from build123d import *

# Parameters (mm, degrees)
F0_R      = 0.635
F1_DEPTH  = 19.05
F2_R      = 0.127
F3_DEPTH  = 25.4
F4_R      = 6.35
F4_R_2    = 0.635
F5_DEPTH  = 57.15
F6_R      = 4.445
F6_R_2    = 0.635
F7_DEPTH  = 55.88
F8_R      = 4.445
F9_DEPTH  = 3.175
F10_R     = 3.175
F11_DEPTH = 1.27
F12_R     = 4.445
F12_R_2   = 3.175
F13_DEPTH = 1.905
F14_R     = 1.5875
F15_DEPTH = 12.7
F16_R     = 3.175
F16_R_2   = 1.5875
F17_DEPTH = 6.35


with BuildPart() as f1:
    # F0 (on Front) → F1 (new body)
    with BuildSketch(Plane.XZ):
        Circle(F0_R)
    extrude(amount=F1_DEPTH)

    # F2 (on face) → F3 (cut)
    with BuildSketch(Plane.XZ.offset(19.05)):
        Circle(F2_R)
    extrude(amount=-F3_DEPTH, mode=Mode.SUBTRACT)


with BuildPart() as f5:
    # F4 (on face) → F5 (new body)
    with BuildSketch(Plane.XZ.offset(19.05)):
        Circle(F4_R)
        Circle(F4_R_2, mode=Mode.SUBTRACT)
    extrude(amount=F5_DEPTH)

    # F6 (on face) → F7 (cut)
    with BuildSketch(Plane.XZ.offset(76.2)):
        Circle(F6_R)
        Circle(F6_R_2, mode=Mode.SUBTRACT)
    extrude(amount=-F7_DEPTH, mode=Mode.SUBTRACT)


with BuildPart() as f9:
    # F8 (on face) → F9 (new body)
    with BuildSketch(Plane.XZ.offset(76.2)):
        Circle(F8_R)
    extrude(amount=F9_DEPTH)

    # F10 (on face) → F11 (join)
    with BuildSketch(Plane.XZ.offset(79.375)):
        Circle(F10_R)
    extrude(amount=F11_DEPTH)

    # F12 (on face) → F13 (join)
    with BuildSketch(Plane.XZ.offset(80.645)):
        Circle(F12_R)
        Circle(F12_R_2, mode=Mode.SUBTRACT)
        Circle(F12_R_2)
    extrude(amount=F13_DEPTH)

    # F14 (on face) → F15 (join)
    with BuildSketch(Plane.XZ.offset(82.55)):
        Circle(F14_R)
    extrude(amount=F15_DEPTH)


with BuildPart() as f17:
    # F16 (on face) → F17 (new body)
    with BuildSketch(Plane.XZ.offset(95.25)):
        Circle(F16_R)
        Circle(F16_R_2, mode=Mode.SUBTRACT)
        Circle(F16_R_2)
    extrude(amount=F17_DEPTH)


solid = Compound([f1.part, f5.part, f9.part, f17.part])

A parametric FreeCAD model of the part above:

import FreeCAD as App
import Part
import Sketcher
Q = App.Units.Quantity

doc = App.newDocument("Part")
body = doc.addObject("PartDesign::Body", "Body")

sketch1 = doc.addObject("Sketcher::SketchObject", "Sketch")
body.addObject(sketch1)
sketch1.AttachmentSupport = (doc.XZ_Plane, [""])
sketch1.MapMode = "FlatFace"
sketch1.addGeometry(Part.Circle(App.Vector(0, 0, 0), App.Vector(0, 0, 1), 0.6), False)
sketch1.addConstraint([
    Sketcher.Constraint("Coincident", 0, 3, -1, 1),
    Sketcher.Constraint("Diameter", 0, Q("0.05 in")),
])
pad1 = doc.addObject("PartDesign::Pad", "Pad")
body.addObject(pad1)
pad1.Profile = sketch1
pad1.Length = Q("0.75 in")

sketch2 = doc.addObject("Sketcher::SketchObject", "Sketch001")
body.addObject(sketch2)
sketch2.AttachmentSupport = (doc.XZ_Plane, [""])
sketch2.MapMode = "FlatFace"
sketch2.AttachmentOffset = App.Placement(App.Vector(0, 0, 0.75 * 25.4), App.Rotation())
sketch2.addGeometry(Part.Circle(App.Vector(0, 0, 0), App.Vector(0, 0, 1), 0.13), False)
sketch2.addConstraint([
    Sketcher.Constraint("Coincident", 0, 3, -1, 1),
    Sketcher.Constraint("Diameter", 0, Q("0.01 in")),
])
pocket1 = doc.addObject("PartDesign::Pocket", "Pocket")
body.addObject(pocket1)
pocket1.Profile = sketch2
pocket1.Length = Q("1 in")
body2 = doc.addObject("PartDesign::Body", "Body001")

sketch3 = doc.addObject("Sketcher::SketchObject", "Sketch002")
body2.addObject(sketch3)
sketch3.AttachmentSupport = (doc.getObject("XZ_Plane001"), [""])
sketch3.MapMode = "FlatFace"
sketch3.AttachmentOffset = App.Placement(App.Vector(0, 0, 0.75 * 25.4), App.Rotation())
sketch3.addGeometry([
    Part.Circle(App.Vector(0, 0, 0), App.Vector(0, 0, 1), 6.3),
    Part.Circle(App.Vector(0, 0, 0), App.Vector(0, 0, 1), 0.6),
], False)
sketch3.addConstraint([
    Sketcher.Constraint("Coincident", 0, 3, -1, 1),
    Sketcher.Constraint("Coincident", 1, 3, -1, 1),
    Sketcher.Constraint("Diameter", 0, Q("0.5 in")),
    Sketcher.Constraint("Diameter", 1, Q("0.05 in")),
])
pad2 = doc.addObject("PartDesign::Pad", "Pad001")
body2.addObject(pad2)
pad2.Profile = sketch3
pad2.Length = Q("2.25 in")

sketch4 = doc.addObject("Sketcher::SketchObject", "Sketch003")
body2.addObject(sketch4)
sketch4.AttachmentSupport = (doc.getObject("XZ_Plane001"), [""])
sketch4.MapMode = "FlatFace"
sketch4.AttachmentOffset = App.Placement(App.Vector(0, 0, 3 * 25.4), App.Rotation())
sketch4.addGeometry([
    Part.Circle(App.Vector(0, 0, 0), App.Vector(0, 0, 1), 4.4),
    Part.Circle(App.Vector(0, 0, 0), App.Vector(0, 0, 1), 0.6),
], False)
sketch4.addConstraint([
    Sketcher.Constraint("Coincident", 0, 3, -1, 1),
    Sketcher.Constraint("Coincident", 1, 3, -1, 1),
    Sketcher.Constraint("Diameter", 0, Q("0.35 in")),
    Sketcher.Constraint("Diameter", 1, Q("0.05 in")),
])
pocket2 = doc.addObject("PartDesign::Pocket", "Pocket001")
body2.addObject(pocket2)
pocket2.Profile = sketch4
pocket2.Length = Q("2.2 in")
body3 = doc.addObject("PartDesign::Body", "Body002")

sketch5 = doc.addObject("Sketcher::SketchObject", "Sketch004")
body3.addObject(sketch5)
sketch5.AttachmentSupport = (doc.getObject("XZ_Plane002"), [""])
sketch5.MapMode = "FlatFace"
sketch5.AttachmentOffset = App.Placement(App.Vector(0, 0, 3 * 25.4), App.Rotation())
sketch5.addGeometry(Part.Circle(App.Vector(0, 0, 0), App.Vector(0, 0, 1), 4.4), False)
sketch5.addConstraint([
    Sketcher.Constraint("Coincident", 0, 3, -1, 1),
    Sketcher.Constraint("Diameter", 0, Q("0.35 in")),
])
pad3 = doc.addObject("PartDesign::Pad", "Pad002")
body3.addObject(pad3)
pad3.Profile = sketch5
pad3.Length = Q("0.125 in")

sketch6 = doc.addObject("Sketcher::SketchObject", "Sketch005")
body3.addObject(sketch6)
sketch6.AttachmentSupport = (doc.getObject("XZ_Plane002"), [""])
sketch6.MapMode = "FlatFace"
sketch6.AttachmentOffset = App.Placement(App.Vector(0, 0, 3.125 * 25.4), App.Rotation())
sketch6.addGeometry(Part.Circle(App.Vector(0, 0, 0), App.Vector(0, 0, 1), 3.2), False)
sketch6.addConstraint([
    Sketcher.Constraint("Coincident", 0, 3, -1, 1),
    Sketcher.Constraint("Diameter", 0, Q("0.25 in")),
])
pad4 = doc.addObject("PartDesign::Pad", "Pad003")
body3.addObject(pad4)
pad4.Profile = sketch6
pad4.Length = Q("0.05 in")

sketch7 = doc.addObject("Sketcher::SketchObject", "Sketch006")
body3.addObject(sketch7)
sketch7.AttachmentSupport = (doc.getObject("XZ_Plane002"), [""])
sketch7.MapMode = "FlatFace"
sketch7.AttachmentOffset = App.Placement(App.Vector(0, 0, 3.175 * 25.4), App.Rotation())
sketch7.addGeometry(Part.Circle(App.Vector(0, 0, 0), App.Vector(0, 0, 1), 4.4), False)
sketch7.addConstraint([
    Sketcher.Constraint("Coincident", 0, 3, -1, 1),
    Sketcher.Constraint("Diameter", 0, Q("0.35 in")),
])
pad5 = doc.addObject("PartDesign::Pad", "Pad004")
body3.addObject(pad5)
pad5.Profile = sketch7
pad5.Length = Q("0.075 in")

sketch8 = doc.addObject("Sketcher::SketchObject", "Sketch007")
body3.addObject(sketch8)
sketch8.AttachmentSupport = (doc.getObject("XZ_Plane002"), [""])
sketch8.MapMode = "FlatFace"
sketch8.AttachmentOffset = App.Placement(App.Vector(0, 0, 3.25 * 25.4), App.Rotation())
sketch8.addGeometry(Part.Circle(App.Vector(0, 0, 0), App.Vector(0, 0, 1), 1.6), False)
sketch8.addConstraint([
    Sketcher.Constraint("Coincident", 0, 3, -1, 1),
    Sketcher.Constraint("Diameter", 0, Q("0.125 in")),
])
pad6 = doc.addObject("PartDesign::Pad", "Pad005")
body3.addObject(pad6)
pad6.Profile = sketch8
pad6.Length = Q("0.5 in")
body4 = doc.addObject("PartDesign::Body", "Body003")

sketch9 = doc.addObject("Sketcher::SketchObject", "Sketch008")
body4.addObject(sketch9)
sketch9.AttachmentSupport = (doc.getObject("XZ_Plane003"), [""])
sketch9.MapMode = "FlatFace"
sketch9.AttachmentOffset = App.Placement(App.Vector(0, 0, 3.75 * 25.4), App.Rotation())
sketch9.addGeometry(Part.Circle(App.Vector(0, 0, 0), App.Vector(0, 0, 1), 3.2), False)
sketch9.addConstraint([
    Sketcher.Constraint("Coincident", 0, 3, -1, 1),
    Sketcher.Constraint("Diameter", 0, Q("0.25 in")),
])
pad7 = doc.addObject("PartDesign::Pad", "Pad006")
body4.addObject(pad7)
pad7.Profile = sketch9
pad7.Length = Q("0.25 in")

doc.recompute()
